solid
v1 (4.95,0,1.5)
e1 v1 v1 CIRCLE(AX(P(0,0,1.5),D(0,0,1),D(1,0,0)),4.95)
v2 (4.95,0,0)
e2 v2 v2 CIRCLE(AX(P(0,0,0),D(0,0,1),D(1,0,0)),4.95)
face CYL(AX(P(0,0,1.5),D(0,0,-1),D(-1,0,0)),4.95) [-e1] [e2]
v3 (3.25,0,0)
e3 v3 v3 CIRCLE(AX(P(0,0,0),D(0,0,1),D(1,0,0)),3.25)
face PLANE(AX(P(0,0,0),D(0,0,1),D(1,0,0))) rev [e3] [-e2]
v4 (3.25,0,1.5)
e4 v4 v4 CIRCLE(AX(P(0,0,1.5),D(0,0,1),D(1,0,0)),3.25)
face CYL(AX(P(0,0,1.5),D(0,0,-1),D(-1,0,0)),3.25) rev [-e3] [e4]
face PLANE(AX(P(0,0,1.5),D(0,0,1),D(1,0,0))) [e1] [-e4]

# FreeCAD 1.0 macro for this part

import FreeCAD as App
import Part
import Sketcher

doc = App.newDocument("Part")
body = doc.addObject("PartDesign::Body", "Body")

# Sketch on XY plane
sketch1 = body.newObject("Sketcher::SketchObject", "Sketch")
sketch1.AttachmentSupport = (doc.getObject("XY_Plane"), [""])
sketch1.MapMode = "FlatFace"
sketch1.addGeometry([
    Part.Circle(App.Vector(0, 0, 0), App.Vector(0, 0, 1), 4.95),
    Part.Circle(App.Vector(0, 0, 0), App.Vector(0, 0, 1), 3.25),
], False)
sketch1.addConstraint([
    Sketcher.Constraint("Coincident", 0, 3, -1, 1),
    Sketcher.Constraint("Coincident", 1, 3, -1, 1),
    Sketcher.Constraint("Diameter", 0, 9.9),
    Sketcher.Constraint("Diameter", 1, 6.5),
])
pad1 = body.newObject("PartDesign::Pad", "Pad")
pad1.Profile = sketch1
pad1.Length = 1.5

doc.recompute()
